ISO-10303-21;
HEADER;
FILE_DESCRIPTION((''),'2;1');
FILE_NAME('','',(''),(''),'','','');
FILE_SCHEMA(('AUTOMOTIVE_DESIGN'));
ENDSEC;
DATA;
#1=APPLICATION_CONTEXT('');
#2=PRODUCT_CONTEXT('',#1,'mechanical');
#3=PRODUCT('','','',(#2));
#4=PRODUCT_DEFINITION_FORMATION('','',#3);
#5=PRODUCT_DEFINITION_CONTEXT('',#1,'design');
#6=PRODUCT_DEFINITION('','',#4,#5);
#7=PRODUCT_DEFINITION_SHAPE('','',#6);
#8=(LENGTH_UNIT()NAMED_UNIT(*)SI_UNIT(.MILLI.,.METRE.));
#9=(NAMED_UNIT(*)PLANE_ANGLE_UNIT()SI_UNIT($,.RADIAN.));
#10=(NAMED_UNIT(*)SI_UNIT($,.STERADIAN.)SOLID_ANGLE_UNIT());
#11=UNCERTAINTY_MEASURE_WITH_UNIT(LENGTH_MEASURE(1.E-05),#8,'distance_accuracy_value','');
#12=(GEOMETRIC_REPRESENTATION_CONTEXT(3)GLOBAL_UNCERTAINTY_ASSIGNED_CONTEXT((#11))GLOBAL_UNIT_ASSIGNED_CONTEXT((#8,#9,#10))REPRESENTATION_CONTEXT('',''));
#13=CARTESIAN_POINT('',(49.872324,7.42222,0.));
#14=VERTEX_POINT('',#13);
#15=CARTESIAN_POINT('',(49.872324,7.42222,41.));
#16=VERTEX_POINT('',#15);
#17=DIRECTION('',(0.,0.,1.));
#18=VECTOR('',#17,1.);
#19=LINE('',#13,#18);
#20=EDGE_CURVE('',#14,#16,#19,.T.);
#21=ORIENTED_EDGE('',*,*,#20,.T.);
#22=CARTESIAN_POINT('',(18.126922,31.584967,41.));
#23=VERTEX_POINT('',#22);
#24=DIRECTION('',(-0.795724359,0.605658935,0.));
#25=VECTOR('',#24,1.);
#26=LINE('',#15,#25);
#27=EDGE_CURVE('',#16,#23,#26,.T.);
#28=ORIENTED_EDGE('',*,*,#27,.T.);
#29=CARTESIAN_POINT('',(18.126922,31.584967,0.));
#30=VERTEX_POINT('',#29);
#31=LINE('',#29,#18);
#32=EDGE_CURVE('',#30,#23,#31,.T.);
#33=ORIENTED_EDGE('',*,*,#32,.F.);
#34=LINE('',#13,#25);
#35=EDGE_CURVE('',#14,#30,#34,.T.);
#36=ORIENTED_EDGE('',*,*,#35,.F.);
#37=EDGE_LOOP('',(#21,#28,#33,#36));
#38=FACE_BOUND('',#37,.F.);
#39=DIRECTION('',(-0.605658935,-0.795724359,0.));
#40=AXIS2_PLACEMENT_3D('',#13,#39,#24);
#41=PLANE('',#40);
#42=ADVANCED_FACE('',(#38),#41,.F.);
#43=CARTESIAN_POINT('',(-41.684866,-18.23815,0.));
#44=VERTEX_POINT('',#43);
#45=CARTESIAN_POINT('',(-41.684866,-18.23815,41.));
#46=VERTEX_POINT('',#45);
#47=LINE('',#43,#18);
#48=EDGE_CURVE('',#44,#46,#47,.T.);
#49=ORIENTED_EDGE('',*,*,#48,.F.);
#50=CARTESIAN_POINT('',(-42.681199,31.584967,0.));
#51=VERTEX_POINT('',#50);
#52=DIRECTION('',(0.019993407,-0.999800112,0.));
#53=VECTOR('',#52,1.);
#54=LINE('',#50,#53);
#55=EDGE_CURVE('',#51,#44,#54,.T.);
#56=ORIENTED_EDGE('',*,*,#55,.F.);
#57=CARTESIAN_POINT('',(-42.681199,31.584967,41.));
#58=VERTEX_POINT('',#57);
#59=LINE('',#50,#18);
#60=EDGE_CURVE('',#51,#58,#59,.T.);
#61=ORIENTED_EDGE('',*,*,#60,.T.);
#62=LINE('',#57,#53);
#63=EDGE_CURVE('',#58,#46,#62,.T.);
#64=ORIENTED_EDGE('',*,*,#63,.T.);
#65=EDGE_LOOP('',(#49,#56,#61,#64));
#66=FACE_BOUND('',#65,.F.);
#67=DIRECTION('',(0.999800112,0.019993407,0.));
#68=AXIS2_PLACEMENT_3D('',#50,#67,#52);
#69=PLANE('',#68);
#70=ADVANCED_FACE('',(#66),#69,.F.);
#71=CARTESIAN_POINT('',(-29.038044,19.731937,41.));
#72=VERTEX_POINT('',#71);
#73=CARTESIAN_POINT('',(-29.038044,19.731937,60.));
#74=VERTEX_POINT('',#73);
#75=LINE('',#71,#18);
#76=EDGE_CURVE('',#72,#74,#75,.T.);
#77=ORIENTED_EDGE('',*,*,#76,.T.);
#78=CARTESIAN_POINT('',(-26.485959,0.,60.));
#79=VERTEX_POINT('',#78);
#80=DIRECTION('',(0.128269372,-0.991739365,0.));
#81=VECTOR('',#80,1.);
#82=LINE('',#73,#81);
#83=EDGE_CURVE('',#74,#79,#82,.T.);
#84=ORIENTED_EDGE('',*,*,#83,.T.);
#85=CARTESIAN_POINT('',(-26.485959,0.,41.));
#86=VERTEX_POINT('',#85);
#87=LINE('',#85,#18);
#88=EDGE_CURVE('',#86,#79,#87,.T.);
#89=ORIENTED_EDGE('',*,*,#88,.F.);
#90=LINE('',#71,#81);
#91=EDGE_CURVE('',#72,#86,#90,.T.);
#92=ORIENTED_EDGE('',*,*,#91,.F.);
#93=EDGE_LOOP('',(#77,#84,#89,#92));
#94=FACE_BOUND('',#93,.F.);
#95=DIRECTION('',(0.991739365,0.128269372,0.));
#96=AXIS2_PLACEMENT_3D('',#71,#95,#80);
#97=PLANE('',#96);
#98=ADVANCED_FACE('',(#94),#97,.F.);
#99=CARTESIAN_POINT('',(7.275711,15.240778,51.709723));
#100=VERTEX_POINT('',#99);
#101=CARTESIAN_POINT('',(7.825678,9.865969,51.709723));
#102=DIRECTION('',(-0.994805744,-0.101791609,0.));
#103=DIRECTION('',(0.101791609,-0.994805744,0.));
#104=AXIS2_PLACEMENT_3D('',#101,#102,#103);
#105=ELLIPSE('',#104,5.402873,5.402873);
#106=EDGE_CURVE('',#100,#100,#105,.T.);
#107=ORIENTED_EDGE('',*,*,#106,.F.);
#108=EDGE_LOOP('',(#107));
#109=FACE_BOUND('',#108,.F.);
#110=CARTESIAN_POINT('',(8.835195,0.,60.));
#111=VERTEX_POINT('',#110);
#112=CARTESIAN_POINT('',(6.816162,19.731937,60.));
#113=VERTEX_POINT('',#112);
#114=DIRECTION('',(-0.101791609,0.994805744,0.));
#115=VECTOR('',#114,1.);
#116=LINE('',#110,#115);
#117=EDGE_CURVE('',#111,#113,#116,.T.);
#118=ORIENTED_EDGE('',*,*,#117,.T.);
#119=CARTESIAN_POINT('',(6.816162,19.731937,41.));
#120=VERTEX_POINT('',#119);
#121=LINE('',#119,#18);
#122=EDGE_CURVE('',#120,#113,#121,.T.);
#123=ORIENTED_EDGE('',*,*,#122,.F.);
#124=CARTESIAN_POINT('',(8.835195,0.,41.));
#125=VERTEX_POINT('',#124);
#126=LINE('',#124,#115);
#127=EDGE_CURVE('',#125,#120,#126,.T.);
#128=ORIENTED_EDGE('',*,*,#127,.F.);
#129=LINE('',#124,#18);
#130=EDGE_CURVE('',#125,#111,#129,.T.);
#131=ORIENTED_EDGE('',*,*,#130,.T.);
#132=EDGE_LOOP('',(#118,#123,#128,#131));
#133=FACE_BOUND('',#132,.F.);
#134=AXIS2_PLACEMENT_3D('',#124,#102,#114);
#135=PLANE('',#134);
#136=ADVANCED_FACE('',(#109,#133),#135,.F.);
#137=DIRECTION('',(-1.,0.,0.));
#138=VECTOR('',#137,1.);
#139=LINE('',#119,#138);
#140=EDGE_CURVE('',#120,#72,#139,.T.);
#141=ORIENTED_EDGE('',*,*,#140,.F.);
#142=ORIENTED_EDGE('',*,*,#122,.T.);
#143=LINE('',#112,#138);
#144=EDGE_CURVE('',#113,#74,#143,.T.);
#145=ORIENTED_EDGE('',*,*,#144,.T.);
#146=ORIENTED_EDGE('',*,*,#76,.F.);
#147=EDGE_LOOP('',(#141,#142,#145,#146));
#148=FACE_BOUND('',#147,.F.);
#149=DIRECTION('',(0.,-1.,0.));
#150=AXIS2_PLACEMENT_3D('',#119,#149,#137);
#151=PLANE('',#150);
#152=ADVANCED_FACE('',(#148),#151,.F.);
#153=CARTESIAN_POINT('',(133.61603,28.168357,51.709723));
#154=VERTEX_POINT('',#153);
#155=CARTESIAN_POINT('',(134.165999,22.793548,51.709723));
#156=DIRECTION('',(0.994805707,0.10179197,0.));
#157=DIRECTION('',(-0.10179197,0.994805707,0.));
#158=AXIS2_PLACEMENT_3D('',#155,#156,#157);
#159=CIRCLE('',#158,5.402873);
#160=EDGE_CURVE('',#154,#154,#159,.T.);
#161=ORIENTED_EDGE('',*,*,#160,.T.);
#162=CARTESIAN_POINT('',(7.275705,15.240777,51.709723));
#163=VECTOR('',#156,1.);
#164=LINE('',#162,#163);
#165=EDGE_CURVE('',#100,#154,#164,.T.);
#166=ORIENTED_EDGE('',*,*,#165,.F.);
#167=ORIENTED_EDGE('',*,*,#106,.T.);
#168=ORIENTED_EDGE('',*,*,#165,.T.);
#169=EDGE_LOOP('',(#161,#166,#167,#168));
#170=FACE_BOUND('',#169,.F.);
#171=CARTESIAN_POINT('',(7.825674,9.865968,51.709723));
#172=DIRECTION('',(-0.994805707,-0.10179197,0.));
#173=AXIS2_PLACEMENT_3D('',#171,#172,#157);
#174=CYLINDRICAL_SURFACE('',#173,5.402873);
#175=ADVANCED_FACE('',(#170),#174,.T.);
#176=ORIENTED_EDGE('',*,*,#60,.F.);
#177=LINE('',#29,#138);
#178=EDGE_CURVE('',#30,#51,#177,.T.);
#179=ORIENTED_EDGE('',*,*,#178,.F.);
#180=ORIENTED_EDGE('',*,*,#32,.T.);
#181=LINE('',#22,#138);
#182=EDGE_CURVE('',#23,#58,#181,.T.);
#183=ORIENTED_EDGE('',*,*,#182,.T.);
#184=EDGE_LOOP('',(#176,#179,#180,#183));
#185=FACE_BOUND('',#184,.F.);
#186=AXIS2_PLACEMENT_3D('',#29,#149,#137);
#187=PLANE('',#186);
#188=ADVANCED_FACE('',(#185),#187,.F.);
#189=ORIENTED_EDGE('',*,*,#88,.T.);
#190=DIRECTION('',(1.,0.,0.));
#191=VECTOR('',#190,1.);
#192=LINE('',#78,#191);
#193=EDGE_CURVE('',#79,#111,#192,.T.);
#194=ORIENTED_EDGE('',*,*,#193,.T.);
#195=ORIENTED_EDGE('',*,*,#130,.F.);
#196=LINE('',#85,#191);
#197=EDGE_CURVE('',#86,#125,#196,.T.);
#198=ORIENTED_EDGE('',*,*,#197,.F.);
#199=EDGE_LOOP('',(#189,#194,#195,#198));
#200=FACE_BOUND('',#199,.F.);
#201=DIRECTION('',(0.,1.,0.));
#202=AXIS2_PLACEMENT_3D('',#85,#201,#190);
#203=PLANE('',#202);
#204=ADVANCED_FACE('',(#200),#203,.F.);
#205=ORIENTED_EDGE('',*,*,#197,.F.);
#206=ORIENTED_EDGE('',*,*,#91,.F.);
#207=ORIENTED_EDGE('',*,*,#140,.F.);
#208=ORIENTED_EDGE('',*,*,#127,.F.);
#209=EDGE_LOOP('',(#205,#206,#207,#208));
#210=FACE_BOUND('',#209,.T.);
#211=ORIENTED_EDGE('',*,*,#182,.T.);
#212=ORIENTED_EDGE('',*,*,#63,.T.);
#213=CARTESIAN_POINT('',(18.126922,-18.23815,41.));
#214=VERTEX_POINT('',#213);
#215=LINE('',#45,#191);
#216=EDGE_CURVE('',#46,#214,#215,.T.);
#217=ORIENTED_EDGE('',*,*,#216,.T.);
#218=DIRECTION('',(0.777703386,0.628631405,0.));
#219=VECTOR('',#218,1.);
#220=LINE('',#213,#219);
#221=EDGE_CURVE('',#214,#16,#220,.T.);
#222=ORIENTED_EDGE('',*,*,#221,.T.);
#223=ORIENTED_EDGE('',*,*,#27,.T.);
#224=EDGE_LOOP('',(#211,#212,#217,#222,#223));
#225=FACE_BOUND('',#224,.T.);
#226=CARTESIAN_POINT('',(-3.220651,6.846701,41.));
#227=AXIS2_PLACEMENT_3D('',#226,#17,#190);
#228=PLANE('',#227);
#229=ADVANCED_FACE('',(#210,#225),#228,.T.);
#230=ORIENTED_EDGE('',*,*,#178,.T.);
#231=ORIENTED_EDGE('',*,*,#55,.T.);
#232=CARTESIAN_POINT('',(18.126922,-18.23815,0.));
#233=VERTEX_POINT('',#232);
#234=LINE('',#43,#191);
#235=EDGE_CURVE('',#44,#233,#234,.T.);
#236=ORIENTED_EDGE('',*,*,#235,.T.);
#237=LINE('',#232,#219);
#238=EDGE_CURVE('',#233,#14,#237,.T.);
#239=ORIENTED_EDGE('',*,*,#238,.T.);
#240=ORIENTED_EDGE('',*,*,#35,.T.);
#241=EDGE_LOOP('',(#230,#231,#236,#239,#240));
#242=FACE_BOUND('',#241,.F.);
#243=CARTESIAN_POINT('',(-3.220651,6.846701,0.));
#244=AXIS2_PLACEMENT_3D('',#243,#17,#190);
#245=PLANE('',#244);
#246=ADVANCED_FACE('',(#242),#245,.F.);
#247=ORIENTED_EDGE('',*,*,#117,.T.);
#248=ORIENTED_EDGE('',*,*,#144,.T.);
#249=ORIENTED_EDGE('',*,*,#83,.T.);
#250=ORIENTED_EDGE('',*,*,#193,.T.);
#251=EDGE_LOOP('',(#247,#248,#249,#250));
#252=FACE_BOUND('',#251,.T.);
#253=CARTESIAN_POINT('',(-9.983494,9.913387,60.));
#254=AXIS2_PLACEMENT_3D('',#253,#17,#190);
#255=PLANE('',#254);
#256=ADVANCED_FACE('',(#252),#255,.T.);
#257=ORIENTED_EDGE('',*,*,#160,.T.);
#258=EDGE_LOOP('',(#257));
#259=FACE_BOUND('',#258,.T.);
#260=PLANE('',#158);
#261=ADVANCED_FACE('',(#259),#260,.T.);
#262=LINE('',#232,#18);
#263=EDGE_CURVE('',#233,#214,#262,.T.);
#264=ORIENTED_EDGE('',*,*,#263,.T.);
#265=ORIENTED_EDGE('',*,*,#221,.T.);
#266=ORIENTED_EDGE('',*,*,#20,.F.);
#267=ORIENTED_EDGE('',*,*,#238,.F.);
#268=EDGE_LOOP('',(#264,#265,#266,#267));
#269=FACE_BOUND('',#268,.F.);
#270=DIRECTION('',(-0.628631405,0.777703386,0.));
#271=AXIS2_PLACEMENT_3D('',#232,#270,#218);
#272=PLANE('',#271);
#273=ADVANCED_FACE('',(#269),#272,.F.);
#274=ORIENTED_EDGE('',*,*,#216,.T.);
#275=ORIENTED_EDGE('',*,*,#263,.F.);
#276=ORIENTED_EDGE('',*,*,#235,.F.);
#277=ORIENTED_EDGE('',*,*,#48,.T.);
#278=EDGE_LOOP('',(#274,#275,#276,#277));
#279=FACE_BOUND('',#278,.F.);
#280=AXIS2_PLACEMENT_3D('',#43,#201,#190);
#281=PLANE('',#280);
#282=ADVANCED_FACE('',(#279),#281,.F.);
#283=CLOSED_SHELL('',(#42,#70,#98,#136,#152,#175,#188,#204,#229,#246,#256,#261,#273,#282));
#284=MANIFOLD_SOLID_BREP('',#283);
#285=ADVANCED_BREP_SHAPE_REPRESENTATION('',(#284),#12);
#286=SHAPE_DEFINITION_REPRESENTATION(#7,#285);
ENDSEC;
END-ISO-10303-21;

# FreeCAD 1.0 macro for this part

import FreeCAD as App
import Part
import Sketcher

V = App.Vector

doc = App.newDocument("Part")
params = doc.addObject("Spreadsheet::Sheet", "Params")
for row, (alias, value) in enumerate([
    ("pad1_length", "41 mm"),
    ("pad2_length", "19 mm"),
    ("pad3_length", "127 mm"),
], start=1):
    params.set(f"A{row}", alias)
    params.set(f"B{row}", "=" + value)
    params.setAlias(f"B{row}", alias)

body = doc.addObject("PartDesign::Body", "Body")

# Sketch on XY plane
sketch1 = body.newObject("Sketcher::SketchObject", "Sketch")
sketch1.AttachmentSupport = (doc.getObject("XY_Plane"), [""])
sketch1.MapMode = "FlatFace"
sketch1.addGeometry([
    Part.LineSegment(V(-43, 32, 0), V(-42, -18, 0)),  # 0
    Part.LineSegment(V(-42, -18, 0), V(18, -18, 0)),  # 1
    Part.LineSegment(V(18, -18, 0), V(50, 7, 0)),  # 2
    Part.LineSegment(V(50, 7, 0), V(18, 32, 0)),  # 3
    Part.LineSegment(V(18, 32, 0), V(-43, 32, 0)),  # 4
], False)
sketch1.addConstraint([
    Sketcher.Constraint("Coincident", 0, 2, 1, 1),
    Sketcher.Constraint("Coincident", 1, 2, 2, 1),
    Sketcher.Constraint("Coincident", 2, 2, 3, 1),
    Sketcher.Constraint("Coincident", 3, 2, 4, 1),
    Sketcher.Constraint("Coincident", 4, 2, 0, 1),
    Sketcher.Constraint("Horizontal", 1),
    Sketcher.Constraint("Horizontal", 4),
    Sketcher.Constraint("Vertical", 1, 2, 3, 2),
    Sketcher.Constraint("DistanceX", 4, 2, 4, 1, 60.808121),
    Sketcher.Constraint("DistanceX", 4, 2, -1, 1, 42.681199),
    Sketcher.Constraint("DistanceX", 1, 2, 2, 2, 31.745402),
    Sketcher.Constraint("Distance", 0, 49.833078),
    Sketcher.Constraint("Distance", 2, 40.819421),
    Sketcher.Constraint("DistanceX", 1, 1, 1, 2, 59.811788),
    Sketcher.Constraint("DistanceY", 0, 2, -1, 1, 18.23815),
])
pad1 = body.newObject("PartDesign::Pad", "Pad")
pad1.Profile = sketch1
pad1.setExpression("Length", "Params.pad1_length")

# Sketch on XY plane
sketch2 = body.newObject("Sketcher::SketchObject", "Sketch001")
sketch2.AttachmentSupport = (doc.getObject("XY_Plane"), [""])
sketch2.MapMode = "FlatFace"
sketch2.AttachmentOffset = App.Placement(V(0, 0, 41), App.Rotation())
sketch2.addGeometry([
    Part.LineSegment(V(7, 20, 0), V(-29, 20, 0)),
    Part.LineSegment(V(-29, 20, 0), V(-26, 0, 0)),
    Part.LineSegment(V(-26, 0, 0), V(9, 0, 0)),
    Part.LineSegment(V(9, 0, 0), V(7, 20, 0)),
], False)
sketch2.addConstraint([
    Sketcher.Constraint("Coincident", 0, 2, 1, 1),
    Sketcher.Constraint("Coincident", 1, 2, 2, 1),
    Sketcher.Constraint("Coincident", 2, 2, 3, 1),
    Sketcher.Constraint("Coincident", 3, 2, 0, 1),
    Sketcher.Constraint("Horizontal", 0),
    Sketcher.Constraint("Horizontal", 2),
    Sketcher.Constraint("PointOnObject", 1, 2, -1),
    Sketcher.Constraint("DistanceX", 0, 2, 0, 1, 35.854206),
    Sketcher.Constraint("DistanceX", 2, 1, 2, 2, 35.321154),
    Sketcher.Constraint("DistanceX", 1, 2, -1, 1, 26.485959),
    Sketcher.Constraint("DistanceX", 0, 2, 2, 2, 37.873239),
    Sketcher.Constraint("Distance", 1, 19.896293),
])
pad2 = body.newObject("PartDesign::Pad", "Pad001")
pad2.Profile = sketch2
pad2.setExpression("Length", "Params.pad2_length")

# Sketch on an angled plane
sketch3 = body.newObject("Sketcher::SketchObject", "Sketch002")
sketch3.Placement = App.Placement(V(8.743648, 0.894677, 0), App.Rotation(V(-0.10179197, 0.994805707, 0), V(0, 0, 1), V(0.994805707, 0.10179197, 0), "ZXY"))
sketch3.addGeometry(Part.Circle(V(9, 52, 0), V(0, 0, 1), 5), False)
sketch3.addConstraint([
    Sketcher.Constraint("Diameter", 0, 10.805746),
    Sketcher.Constraint("DistanceX", -1, 1, 0, 3, 9.018134),
    Sketcher.Constraint("DistanceY", -1, 1, 0, 3, 51.709723),
])
pad3 = body.newObject("PartDesign::Pad", "Pad002")
pad3.Profile = sketch3
pad3.setExpression("Length", "Params.pad3_length")

doc.recompute()
